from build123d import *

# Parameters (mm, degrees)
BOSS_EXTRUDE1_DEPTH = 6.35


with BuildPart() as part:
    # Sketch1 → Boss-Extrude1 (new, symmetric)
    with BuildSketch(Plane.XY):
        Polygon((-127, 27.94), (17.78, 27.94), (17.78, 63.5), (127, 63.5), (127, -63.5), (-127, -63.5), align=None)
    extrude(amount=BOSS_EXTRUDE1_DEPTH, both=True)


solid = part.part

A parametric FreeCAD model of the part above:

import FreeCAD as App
import Part
import Sketcher
from FreeCAD import Vector
Q = App.Units.Quantity


def add_polygon(sketch, points):
    """Adds a closed chain of lines whose ends are joined by coincident constraints."""
    first, n = sketch.GeometryCount, len(points)
    for a, b in zip(points, points[1:] + points[:1]):
        sketch.addGeometry(Part.LineSegment(App.Vector(*a, 0), App.Vector(*b, 0)), False)
    for i in range(n):
        sketch.addConstraint(Sketcher.Constraint("Coincident", first + i, 2, first + (i + 1) % n, 1))

doc = App.newDocument("Part")
params = doc.addObject("Spreadsheet::Sheet", "Params")
for row, (alias, value) in enumerate([
    ("sketch1_width", "10 in"),
    ("sketch1_height", "5 in"),
    ("sketch1_width2", "5.7 in"),
    ("sketch1_height2", "3.6 in"),
    ("pad1_length", "0.5 in"),
], start=1):
    params.set(f"A{row}", alias)
    params.set(f"B{row}", "=" + value)
    params.setAlias(f"B{row}", alias)

body = doc.addObject("PartDesign::Body", "Body")

# Sketch on XY plane
sketch1 = body.newObject("Sketcher::SketchObject", "Sketch")
sketch1.AttachmentSupport = (doc.getObject("XY_Plane"), [""])
sketch1.MapMode = "FlatFace"
add_polygon(sketch1, [(18, 28), (-127, 28), (-127, -64), (127, -64), (127, 64), (18, 64)])  # lines 0-5
sketch1.addConstraint(Sketcher.Constraint("Horizontal", 0))
sketch1.addConstraint(Sketcher.Constraint("Vertical", 1))
sketch1.addConstraint(Sketcher.Constraint("Horizontal", 2))
sketch1.addConstraint(Sketcher.Constraint("Vertical", 3))
sketch1.addConstraint(Sketcher.Constraint("Horizontal", 4))
sketch1.addConstraint(Sketcher.Constraint("Vertical", 5))
sketch1.addConstraint(Sketcher.Constraint("Symmetric", 1, 2, 3, 2, -1, 1))
sketch1.addConstraint(Sketcher.Constraint("DistanceX", 2, 1, 2, 2, Q("10 in")))
sketch1.addConstraint(Sketcher.Constraint("DistanceY", 3, 1, 3, 2, Q("5 in")))
sketch1.addConstraint(Sketcher.Constraint("DistanceX", 0, 2, 0, 1, Q("5.7 in")))
sketch1.addConstraint(Sketcher.Constraint("DistanceY", 1, 2, 1, 1, Q("3.6 in")))
sketch1.setExpression("Constraints[13]", "Params.sketch1_width")
sketch1.setExpression("Constraints[14]", "Params.sketch1_height")
sketch1.setExpression("Constraints[15]", "Params.sketch1_width2")
sketch1.setExpression("Constraints[16]", "Params.sketch1_height2")
pad1 = body.newObject("PartDesign::Pad", "Pad")
pad1.Profile = sketch1
pad1.setExpression("Length", "Params.pad1_length")
pad1.Midplane = True

doc.recompute()
